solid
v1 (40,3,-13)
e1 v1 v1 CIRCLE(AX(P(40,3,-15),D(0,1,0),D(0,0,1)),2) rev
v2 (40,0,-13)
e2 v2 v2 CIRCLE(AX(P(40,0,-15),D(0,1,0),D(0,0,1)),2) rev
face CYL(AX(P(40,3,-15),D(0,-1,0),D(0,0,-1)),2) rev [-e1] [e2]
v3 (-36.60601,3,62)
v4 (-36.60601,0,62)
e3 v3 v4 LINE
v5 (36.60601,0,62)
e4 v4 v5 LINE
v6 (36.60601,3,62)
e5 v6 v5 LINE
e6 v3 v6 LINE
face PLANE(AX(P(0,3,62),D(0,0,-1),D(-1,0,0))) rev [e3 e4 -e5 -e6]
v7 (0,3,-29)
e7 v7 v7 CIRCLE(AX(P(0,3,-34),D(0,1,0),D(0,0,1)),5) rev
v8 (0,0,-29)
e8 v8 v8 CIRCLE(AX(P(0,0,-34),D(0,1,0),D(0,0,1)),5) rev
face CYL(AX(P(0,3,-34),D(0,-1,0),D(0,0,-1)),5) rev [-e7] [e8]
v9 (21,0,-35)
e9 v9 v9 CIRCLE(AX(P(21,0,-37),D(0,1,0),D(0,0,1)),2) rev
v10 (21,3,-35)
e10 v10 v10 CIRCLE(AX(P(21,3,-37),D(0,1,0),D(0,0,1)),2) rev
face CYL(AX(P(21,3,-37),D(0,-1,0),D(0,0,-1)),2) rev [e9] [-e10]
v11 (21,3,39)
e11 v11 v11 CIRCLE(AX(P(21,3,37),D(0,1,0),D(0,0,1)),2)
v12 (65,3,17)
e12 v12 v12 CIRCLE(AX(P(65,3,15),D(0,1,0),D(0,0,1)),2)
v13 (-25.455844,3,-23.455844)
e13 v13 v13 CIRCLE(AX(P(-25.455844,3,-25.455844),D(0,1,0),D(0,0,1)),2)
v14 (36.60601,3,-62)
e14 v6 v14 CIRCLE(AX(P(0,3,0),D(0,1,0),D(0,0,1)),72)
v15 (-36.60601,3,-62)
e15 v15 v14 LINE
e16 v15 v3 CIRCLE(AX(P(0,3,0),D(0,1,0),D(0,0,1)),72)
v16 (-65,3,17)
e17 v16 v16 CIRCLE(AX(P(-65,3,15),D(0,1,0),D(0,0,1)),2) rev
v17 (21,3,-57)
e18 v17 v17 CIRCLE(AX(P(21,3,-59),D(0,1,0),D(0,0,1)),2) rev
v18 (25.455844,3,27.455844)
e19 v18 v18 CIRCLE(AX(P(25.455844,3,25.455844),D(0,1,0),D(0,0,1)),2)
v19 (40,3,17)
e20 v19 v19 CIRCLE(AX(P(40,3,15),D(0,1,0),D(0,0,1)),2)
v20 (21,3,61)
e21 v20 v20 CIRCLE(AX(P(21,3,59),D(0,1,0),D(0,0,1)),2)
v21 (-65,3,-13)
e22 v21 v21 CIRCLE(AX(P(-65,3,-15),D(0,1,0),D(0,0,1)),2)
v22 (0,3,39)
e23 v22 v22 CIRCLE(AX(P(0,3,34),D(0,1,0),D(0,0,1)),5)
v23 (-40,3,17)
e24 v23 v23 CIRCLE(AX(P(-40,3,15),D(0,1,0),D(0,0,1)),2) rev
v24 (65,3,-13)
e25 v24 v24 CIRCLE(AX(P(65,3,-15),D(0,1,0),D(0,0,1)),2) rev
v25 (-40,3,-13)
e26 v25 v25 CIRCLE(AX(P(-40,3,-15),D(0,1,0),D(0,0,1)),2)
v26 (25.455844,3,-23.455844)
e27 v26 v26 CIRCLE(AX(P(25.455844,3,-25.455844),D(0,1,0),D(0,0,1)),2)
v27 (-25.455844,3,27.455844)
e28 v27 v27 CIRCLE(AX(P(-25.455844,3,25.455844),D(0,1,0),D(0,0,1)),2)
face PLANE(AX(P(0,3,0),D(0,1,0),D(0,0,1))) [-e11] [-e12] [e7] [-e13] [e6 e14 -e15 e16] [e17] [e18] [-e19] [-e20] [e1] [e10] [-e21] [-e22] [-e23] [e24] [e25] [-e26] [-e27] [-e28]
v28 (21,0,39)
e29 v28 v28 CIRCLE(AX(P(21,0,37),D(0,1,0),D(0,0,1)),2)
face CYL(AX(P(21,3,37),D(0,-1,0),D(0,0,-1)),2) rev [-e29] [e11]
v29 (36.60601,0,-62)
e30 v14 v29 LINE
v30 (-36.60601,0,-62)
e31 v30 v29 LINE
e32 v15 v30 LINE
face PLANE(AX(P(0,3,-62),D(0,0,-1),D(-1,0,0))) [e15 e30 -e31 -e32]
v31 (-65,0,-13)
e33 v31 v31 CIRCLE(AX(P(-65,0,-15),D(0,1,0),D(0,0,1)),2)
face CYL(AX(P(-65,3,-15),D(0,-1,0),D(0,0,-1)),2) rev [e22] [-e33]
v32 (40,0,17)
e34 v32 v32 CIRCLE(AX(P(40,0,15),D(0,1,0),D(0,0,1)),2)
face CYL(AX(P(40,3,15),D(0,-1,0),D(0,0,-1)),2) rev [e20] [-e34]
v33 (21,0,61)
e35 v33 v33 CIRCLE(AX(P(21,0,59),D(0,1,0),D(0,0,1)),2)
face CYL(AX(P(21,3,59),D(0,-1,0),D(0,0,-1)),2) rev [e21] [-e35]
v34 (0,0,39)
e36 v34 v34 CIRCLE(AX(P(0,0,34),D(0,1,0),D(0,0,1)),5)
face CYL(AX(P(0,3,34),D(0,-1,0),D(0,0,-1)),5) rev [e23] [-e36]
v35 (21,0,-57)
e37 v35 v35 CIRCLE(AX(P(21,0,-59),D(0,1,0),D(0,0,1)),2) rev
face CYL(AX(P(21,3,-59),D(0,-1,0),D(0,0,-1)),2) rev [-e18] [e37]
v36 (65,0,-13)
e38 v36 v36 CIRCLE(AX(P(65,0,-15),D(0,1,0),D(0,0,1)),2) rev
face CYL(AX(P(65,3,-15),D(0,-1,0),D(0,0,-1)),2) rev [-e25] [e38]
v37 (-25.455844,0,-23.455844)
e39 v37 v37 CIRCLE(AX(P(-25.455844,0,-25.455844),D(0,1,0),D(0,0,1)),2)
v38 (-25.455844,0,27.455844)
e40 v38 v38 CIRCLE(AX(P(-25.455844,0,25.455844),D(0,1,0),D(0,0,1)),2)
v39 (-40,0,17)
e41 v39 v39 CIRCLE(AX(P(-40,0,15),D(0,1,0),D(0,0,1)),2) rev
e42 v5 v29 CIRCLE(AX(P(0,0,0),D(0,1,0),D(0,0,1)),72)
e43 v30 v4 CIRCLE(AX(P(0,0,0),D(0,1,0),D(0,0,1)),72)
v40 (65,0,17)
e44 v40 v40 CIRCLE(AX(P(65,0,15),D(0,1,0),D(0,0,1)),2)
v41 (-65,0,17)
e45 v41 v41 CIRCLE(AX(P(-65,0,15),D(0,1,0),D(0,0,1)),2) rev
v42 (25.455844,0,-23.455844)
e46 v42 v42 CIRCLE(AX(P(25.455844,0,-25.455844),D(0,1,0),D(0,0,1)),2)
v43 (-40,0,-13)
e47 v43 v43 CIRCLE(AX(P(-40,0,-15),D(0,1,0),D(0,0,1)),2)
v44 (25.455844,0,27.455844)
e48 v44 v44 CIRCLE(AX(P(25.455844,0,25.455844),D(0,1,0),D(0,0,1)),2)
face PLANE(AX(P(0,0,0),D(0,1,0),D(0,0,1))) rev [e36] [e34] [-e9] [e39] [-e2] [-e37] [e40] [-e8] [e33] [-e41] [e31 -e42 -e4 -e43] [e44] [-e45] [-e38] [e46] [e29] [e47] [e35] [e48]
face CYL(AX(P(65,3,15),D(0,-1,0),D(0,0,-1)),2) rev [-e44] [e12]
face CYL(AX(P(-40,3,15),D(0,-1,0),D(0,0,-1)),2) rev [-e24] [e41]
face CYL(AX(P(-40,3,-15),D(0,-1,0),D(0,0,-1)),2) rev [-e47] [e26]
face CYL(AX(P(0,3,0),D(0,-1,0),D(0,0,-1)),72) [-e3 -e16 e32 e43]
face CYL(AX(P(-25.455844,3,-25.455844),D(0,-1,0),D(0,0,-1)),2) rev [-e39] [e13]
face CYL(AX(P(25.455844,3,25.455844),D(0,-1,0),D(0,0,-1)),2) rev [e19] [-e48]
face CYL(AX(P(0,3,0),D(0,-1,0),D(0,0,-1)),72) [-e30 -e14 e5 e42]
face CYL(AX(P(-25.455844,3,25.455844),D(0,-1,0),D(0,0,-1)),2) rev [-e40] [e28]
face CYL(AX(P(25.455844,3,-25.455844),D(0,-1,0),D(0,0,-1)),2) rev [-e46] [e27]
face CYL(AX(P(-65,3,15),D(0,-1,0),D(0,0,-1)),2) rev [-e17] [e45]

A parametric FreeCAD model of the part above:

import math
import FreeCAD as App
import Part
import Sketcher

doc = App.newDocument("Part")
params = doc.addObject("Spreadsheet::Sheet", "Params")
for row, (alias, value) in enumerate([
    ("sketch1_diameter", "4 mm"),
    ("sketch1_diameter2", "10 mm"),
    ("sketch1_radius", "72 mm"),
    ("pad1_length", "3 mm"),
], start=1):
    params.set(f"A{row}", alias)
    params.set(f"B{row}", "=" + value)
    params.setAlias(f"B{row}", alias)

body = doc.addObject("PartDesign::Body", "Body")

sketch1 = doc.addObject("Sketcher::SketchObject", "Sketch")
body.addObject(sketch1)
sketch1.AttachmentSupport = (doc.XZ_Plane, [""])
sketch1.MapMode = "FlatFace"
sketch1.addGeometry(Part.LineSegment(App.Vector(-36.6, 62, 0), App.Vector(36.6, 62, 0)), False)
sketch1.addGeometry(Part.ArcOfCircle(Part.Circle(App.Vector(0, 0, 0), App.Vector(0, 0, 1), 72), math.radians(0), math.radians(59)), False)
sketch1.addGeometry(Part.ArcOfCircle(Part.Circle(App.Vector(0, 0, 0), App.Vector(0, 0, 1), 72), math.radians(-59), math.radians(0)), False)
sketch1.addGeometry(Part.LineSegment(App.Vector(36.6, -62, 0), App.Vector(-36.6, -62, 0)), False)
sketch1.addGeometry(Part.ArcOfCircle(Part.Circle(App.Vector(0, 0, 0), App.Vector(0, 0, 1), 72), math.radians(121), math.radians(239)), False)
sketch1.addGeometry(Part.ArcOfCircle(Part.Circle(App.Vector(21, 59, 0), App.Vector(0, 0, 1), 2), math.radians(90), math.radians(270)), False)
sketch1.addGeometry(Part.ArcOfCircle(Part.Circle(App.Vector(21, 59, 0), App.Vector(0, 0, 1), 2), math.radians(-90), math.radians(0)), False)
sketch1.addGeometry(Part.ArcOfCircle(Part.Circle(App.Vector(21, 59, 0), App.Vector(0, 0, 1), 2), math.radians(0), math.radians(90)), False)
sketch1.addGeometry(Part.ArcOfCircle(Part.Circle(App.Vector(21, -59, 0), App.Vector(0, 0, 1), 2), math.radians(90), math.radians(270)), False)
sketch1.addGeometry(Part.ArcOfCircle(Part.Circle(App.Vector(21, -59, 0), App.Vector(0, 0, 1), 2), math.radians(-90), math.radians(0)), False)
sketch1.addGeometry(Part.ArcOfCircle(Part.Circle(App.Vector(21, -59, 0), App.Vector(0, 0, 1), 2), math.radians(0), math.radians(90)), False)
sketch1.addGeometry(Part.ArcOfCircle(Part.Circle(App.Vector(21, 37, 0), App.Vector(0, 0, 1), 2), math.radians(90), math.radians(270)), False)
sketch1.addGeometry(Part.ArcOfCircle(Part.Circle(App.Vector(21, 37, 0), App.Vector(0, 0, 1), 2), math.radians(-90), math.radians(0)), False)
sketch1.addGeometry(Part.ArcOfCircle(Part.Circle(App.Vector(21, 37, 0), App.Vector(0, 0, 1), 2), math.radians(0), math.radians(90)), False)
sketch1.addGeometry(Part.ArcOfCircle(Part.Circle(App.Vector(21, -37, 0), App.Vector(0, 0, 1), 2), math.radians(90), math.radians(270)), False)
sketch1.addGeometry(Part.ArcOfCircle(Part.Circle(App.Vector(21, -37, 0), App.Vector(0, 0, 1), 2), math.radians(-90), math.radians(0)), False)
sketch1.addGeometry(Part.ArcOfCircle(Part.Circle(App.Vector(21, -37, 0), App.Vector(0, 0, 1), 2), math.radians(0), math.radians(90)), False)
sketch1.addGeometry(Part.Circle(App.Vector(-65, 15, 0), App.Vector(0, 0, 1), 2), False)
sketch1.addGeometry(Part.Circle(App.Vector(-40, 15, 0), App.Vector(0, 0, 1), 2), False)
sketch1.addGeometry(Part.Circle(App.Vector(-25.5, 25.5, 0), App.Vector(0, 0, 1), 2), False)
sketch1.addGeometry(Part.Circle(App.Vector(0, 34, 0), App.Vector(0, 0, 1), 5), False)
sketch1.addGeometry(Part.Circle(App.Vector(-65, -15, 0), App.Vector(0, 0, 1), 2), False)
sketch1.addGeometry(Part.Circle(App.Vector(-40, -15, 0), App.Vector(0, 0, 1), 2), False)
sketch1.addGeometry(Part.Circle(App.Vector(-25.5, -25.5, 0), App.Vector(0, 0, 1), 2), False)
sketch1.addGeometry(Part.Circle(App.Vector(0, -34, 0), App.Vector(0, 0, 1), 5), False)
sketch1.addGeometry(Part.Circle(App.Vector(65, -15, 0), App.Vector(0, 0, 1), 2), False)
sketch1.addGeometry(Part.Circle(App.Vector(25.5, -25.5, 0), App.Vector(0, 0, 1), 2), False)
sketch1.addGeometry(Part.Circle(App.Vector(40, -15, 0), App.Vector(0, 0, 1), 2), False)
sketch1.addGeometry(Part.Circle(App.Vector(40, 15, 0), App.Vector(0, 0, 1), 2), False)
sketch1.addGeometry(Part.Circle(App.Vector(65, 15, 0), App.Vector(0, 0, 1), 2), False)
sketch1.addGeometry(Part.Circle(App.Vector(25.5, 25.5, 0), App.Vector(0, 0, 1), 2), False)
sketch1.addConstraint(Sketcher.Constraint("Coincident", 0, 2, 1, 2))
sketch1.addConstraint(Sketcher.Constraint("Tangent", 1, 1, 2, 2))
sketch1.addConstraint(Sketcher.Constraint("Coincident", 2, 1, 3, 1))
sketch1.addConstraint(Sketcher.Constraint("Coincident", 3, 2, 4, 2))
sketch1.addConstraint(Sketcher.Constraint("Coincident", 4, 1, 0, 1))
sketch1.addConstraint(Sketcher.Constraint("Tangent", 5, 2, 6, 1))
sketch1.addConstraint(Sketcher.Constraint("Tangent", 6, 2, 7, 1))
sketch1.addConstraint(Sketcher.Constraint("Tangent", 7, 2, 5, 1))
sketch1.addConstraint(Sketcher.Constraint("Tangent", 8, 2, 9, 1))
sketch1.addConstraint(Sketcher.Constraint("Tangent", 9, 2, 10, 1))
sketch1.addConstraint(Sketcher.Constraint("Tangent", 10, 2, 8, 1))
sketch1.addConstraint(Sketcher.Constraint("Tangent", 11, 2, 12, 1))
sketch1.addConstraint(Sketcher.Constraint("Tangent", 12, 2, 13, 1))
sketch1.addConstraint(Sketcher.Constraint("Tangent", 13, 2, 11, 1))
sketch1.addConstraint(Sketcher.Constraint("Tangent", 14, 2, 15, 1))
sketch1.addConstraint(Sketcher.Constraint("Tangent", 15, 2, 16, 1))
sketch1.addConstraint(Sketcher.Constraint("Tangent", 16, 2, 14, 1))
sketch1.addConstraint(Sketcher.Constraint("Horizontal", 0))
sketch1.addConstraint(Sketcher.Constraint("Horizontal", 3))
sketch1.addConstraint(Sketcher.Constraint("Coincident", 1, 3, -1, 1))
sketch1.addConstraint(Sketcher.Constraint("Coincident", 4, 3, -1, 1))
sketch1.addConstraint(Sketcher.Constraint("Equal", 1, 2))
sketch1.addConstraint(Sketcher.Constraint("Equal", 2, 4))
sketch1.addConstraint(Sketcher.Constraint("Equal", 7, 8))
sketch1.addConstraint(Sketcher.Constraint("Equal", 10, 11))
sketch1.addConstraint(Sketcher.Constraint("Equal", 13, 14))
sketch1.addConstraint(Sketcher.Constraint("Equal", 16, 17))
sketch1.addConstraint(Sketcher.Constraint("Equal", 17, 18))
sketch1.addConstraint(Sketcher.Constraint("Equal", 18, 19))
sketch1.addConstraint(Sketcher.Constraint("Equal", 19, 21))
sketch1.addConstraint(Sketcher.Constraint("Equal", 21, 22))
sketch1.addConstraint(Sketcher.Constraint("Equal", 22, 23))
sketch1.addConstraint(Sketcher.Constraint("Equal", 20, 24))
sketch1.addConstraint(Sketcher.Constraint("Equal", 23, 25))
sketch1.addConstraint(Sketcher.Constraint("Equal", 25, 26))
sketch1.addConstraint(Sketcher.Constraint("Equal", 26, 27))
sketch1.addConstraint(Sketcher.Constraint("Equal", 27, 28))
sketch1.addConstraint(Sketcher.Constraint("Equal", 28, 29))
sketch1.addConstraint(Sketcher.Constraint("Equal", 29, 30))
sketch1.addConstraint(Sketcher.Constraint("Symmetric", 20, 3, 24, 3, -1, 1))
sketch1.addConstraint(Sketcher.Constraint("Symmetric", 17, 3, 25, 3, -1, 1))
sketch1.addConstraint(Sketcher.Constraint("Symmetric", 19, 3, 26, 3, -1, 1))
sketch1.addConstraint(Sketcher.Constraint("Symmetric", 18, 3, 27, 3, -1, 1))
sketch1.addConstraint(Sketcher.Constraint("Symmetric", 22, 3, 28, 3, -1, 1))
sketch1.addConstraint(Sketcher.Constraint("Symmetric", 21, 3, 29, 3, -1, 1))
sketch1.addConstraint(Sketcher.Constraint("Symmetric", 23, 3, 30, 3, -1, 1))
sketch1.addConstraint(Sketcher.Constraint("Symmetric", 21, 3, 25, 3, -2))
sketch1.addConstraint(Sketcher.Constraint("Symmetric", 23, 3, 26, 3, -2))
sketch1.addConstraint(Sketcher.Constraint("Symmetric", 22, 3, 27, 3, -2))
sketch1.addConstraint(Sketcher.Constraint("Symmetric", 5, 3, 8, 3, -1))
sketch1.addConstraint(Sketcher.Constraint("Symmetric", 11, 3, 14, 3, -1))
sketch1.addConstraint(Sketcher.Constraint("PointOnObject", 20, 3, -2))
sketch1.addConstraint(Sketcher.Constraint("PointOnObject", 1, 1, -1))
sketch1.addConstraint(Sketcher.Constraint("Horizontal", 17, 3, 18, 3))
sketch1.addConstraint(Sketcher.Constraint("Horizontal", 7, 3, 6, 2))
sketch1.addConstraint(Sketcher.Constraint("Horizontal", 10, 3, 9, 2))
sketch1.addConstraint(Sketcher.Constraint("Horizontal", 13, 3, 12, 2))
sketch1.addConstraint(Sketcher.Constraint("Horizontal", 16, 3, 15, 2))
sketch1.addConstraint(Sketcher.Constraint("Vertical", 10, 3, 11, 3))
sketch1.addConstraint(Sketcher.Constraint("Vertical", 0, 2, 2, 1))
sketch1.addConstraint(Sketcher.Constraint("Vertical", 16, 3, 5, 2))
sketch1.addConstraint(Sketcher.Constraint("Vertical", 5, 2, 7, 2))
sketch1.addConstraint(Sketcher.Constraint("Vertical", 7, 2, 8, 2))
sketch1.addConstraint(Sketcher.Constraint("Vertical", 8, 2, 10, 2))
sketch1.addConstraint(Sketcher.Constraint("Vertical", 10, 2, 11, 2))
sketch1.addConstraint(Sketcher.Constraint("Vertical", 11, 2, 13, 2))
sketch1.addConstraint(Sketcher.Constraint("Vertical", 13, 2, 14, 2))
sketch1.addConstraint(Sketcher.Constraint("Vertical", 14, 2, 16, 2))
sketch1.addConstraint(Sketcher.Constraint("Diameter", 17, 4.0))
sketch1.addConstraint(Sketcher.Constraint("Diameter", 20, 10.0))
sketch1.addConstraint(Sketcher.Constraint("Radius", 1, 72.0))
sketch1.addConstraint(Sketcher.Constraint("DistanceX", -1, 1, 5, 3, 21.0))
sketch1.addConstraint(Sketcher.Constraint("DistanceY", -1, 1, 5, 3, 59.0))
sketch1.addConstraint(Sketcher.Constraint("DistanceY", -1, 1, 11, 3, 37.0))
sketch1.addConstraint(Sketcher.Constraint("DistanceX", 17, 3, -1, 1, 65.0))
sketch1.addConstraint(Sketcher.Constraint("DistanceY", -1, 1, 17, 3, 15.0))
sketch1.addConstraint(Sketcher.Constraint("DistanceX", 18, 3, -1, 1, 40.0))
sketch1.addConstraint(Sketcher.Constraint("DistanceY", -1, 1, 20, 3, 34.0))
sketch1.addConstraint(Sketcher.Constraint("DistanceY", -1, 1, 0, 2, 62.0))
sketch1.addConstraint(Sketcher.Constraint("DistanceX", 19, 3, -1, 1, 25.455844))
sketch1.addConstraint(Sketcher.Constraint("DistanceY", -1, 1, 19, 3, 25.455844))
sketch1.setExpression("Constraints[68]", "Params.sketch1_diameter")
sketch1.setExpression("Constraints[69]", "Params.sketch1_diameter2")
sketch1.setExpression("Constraints[70]", "Params.sketch1_radius")
pad1 = doc.addObject("PartDesign::Pad", "Pad")
body.addObject(pad1)
pad1.Profile = sketch1
pad1.setExpression("Length", "Params.pad1_length")
pad1.Reversed = True

doc.recompute()
